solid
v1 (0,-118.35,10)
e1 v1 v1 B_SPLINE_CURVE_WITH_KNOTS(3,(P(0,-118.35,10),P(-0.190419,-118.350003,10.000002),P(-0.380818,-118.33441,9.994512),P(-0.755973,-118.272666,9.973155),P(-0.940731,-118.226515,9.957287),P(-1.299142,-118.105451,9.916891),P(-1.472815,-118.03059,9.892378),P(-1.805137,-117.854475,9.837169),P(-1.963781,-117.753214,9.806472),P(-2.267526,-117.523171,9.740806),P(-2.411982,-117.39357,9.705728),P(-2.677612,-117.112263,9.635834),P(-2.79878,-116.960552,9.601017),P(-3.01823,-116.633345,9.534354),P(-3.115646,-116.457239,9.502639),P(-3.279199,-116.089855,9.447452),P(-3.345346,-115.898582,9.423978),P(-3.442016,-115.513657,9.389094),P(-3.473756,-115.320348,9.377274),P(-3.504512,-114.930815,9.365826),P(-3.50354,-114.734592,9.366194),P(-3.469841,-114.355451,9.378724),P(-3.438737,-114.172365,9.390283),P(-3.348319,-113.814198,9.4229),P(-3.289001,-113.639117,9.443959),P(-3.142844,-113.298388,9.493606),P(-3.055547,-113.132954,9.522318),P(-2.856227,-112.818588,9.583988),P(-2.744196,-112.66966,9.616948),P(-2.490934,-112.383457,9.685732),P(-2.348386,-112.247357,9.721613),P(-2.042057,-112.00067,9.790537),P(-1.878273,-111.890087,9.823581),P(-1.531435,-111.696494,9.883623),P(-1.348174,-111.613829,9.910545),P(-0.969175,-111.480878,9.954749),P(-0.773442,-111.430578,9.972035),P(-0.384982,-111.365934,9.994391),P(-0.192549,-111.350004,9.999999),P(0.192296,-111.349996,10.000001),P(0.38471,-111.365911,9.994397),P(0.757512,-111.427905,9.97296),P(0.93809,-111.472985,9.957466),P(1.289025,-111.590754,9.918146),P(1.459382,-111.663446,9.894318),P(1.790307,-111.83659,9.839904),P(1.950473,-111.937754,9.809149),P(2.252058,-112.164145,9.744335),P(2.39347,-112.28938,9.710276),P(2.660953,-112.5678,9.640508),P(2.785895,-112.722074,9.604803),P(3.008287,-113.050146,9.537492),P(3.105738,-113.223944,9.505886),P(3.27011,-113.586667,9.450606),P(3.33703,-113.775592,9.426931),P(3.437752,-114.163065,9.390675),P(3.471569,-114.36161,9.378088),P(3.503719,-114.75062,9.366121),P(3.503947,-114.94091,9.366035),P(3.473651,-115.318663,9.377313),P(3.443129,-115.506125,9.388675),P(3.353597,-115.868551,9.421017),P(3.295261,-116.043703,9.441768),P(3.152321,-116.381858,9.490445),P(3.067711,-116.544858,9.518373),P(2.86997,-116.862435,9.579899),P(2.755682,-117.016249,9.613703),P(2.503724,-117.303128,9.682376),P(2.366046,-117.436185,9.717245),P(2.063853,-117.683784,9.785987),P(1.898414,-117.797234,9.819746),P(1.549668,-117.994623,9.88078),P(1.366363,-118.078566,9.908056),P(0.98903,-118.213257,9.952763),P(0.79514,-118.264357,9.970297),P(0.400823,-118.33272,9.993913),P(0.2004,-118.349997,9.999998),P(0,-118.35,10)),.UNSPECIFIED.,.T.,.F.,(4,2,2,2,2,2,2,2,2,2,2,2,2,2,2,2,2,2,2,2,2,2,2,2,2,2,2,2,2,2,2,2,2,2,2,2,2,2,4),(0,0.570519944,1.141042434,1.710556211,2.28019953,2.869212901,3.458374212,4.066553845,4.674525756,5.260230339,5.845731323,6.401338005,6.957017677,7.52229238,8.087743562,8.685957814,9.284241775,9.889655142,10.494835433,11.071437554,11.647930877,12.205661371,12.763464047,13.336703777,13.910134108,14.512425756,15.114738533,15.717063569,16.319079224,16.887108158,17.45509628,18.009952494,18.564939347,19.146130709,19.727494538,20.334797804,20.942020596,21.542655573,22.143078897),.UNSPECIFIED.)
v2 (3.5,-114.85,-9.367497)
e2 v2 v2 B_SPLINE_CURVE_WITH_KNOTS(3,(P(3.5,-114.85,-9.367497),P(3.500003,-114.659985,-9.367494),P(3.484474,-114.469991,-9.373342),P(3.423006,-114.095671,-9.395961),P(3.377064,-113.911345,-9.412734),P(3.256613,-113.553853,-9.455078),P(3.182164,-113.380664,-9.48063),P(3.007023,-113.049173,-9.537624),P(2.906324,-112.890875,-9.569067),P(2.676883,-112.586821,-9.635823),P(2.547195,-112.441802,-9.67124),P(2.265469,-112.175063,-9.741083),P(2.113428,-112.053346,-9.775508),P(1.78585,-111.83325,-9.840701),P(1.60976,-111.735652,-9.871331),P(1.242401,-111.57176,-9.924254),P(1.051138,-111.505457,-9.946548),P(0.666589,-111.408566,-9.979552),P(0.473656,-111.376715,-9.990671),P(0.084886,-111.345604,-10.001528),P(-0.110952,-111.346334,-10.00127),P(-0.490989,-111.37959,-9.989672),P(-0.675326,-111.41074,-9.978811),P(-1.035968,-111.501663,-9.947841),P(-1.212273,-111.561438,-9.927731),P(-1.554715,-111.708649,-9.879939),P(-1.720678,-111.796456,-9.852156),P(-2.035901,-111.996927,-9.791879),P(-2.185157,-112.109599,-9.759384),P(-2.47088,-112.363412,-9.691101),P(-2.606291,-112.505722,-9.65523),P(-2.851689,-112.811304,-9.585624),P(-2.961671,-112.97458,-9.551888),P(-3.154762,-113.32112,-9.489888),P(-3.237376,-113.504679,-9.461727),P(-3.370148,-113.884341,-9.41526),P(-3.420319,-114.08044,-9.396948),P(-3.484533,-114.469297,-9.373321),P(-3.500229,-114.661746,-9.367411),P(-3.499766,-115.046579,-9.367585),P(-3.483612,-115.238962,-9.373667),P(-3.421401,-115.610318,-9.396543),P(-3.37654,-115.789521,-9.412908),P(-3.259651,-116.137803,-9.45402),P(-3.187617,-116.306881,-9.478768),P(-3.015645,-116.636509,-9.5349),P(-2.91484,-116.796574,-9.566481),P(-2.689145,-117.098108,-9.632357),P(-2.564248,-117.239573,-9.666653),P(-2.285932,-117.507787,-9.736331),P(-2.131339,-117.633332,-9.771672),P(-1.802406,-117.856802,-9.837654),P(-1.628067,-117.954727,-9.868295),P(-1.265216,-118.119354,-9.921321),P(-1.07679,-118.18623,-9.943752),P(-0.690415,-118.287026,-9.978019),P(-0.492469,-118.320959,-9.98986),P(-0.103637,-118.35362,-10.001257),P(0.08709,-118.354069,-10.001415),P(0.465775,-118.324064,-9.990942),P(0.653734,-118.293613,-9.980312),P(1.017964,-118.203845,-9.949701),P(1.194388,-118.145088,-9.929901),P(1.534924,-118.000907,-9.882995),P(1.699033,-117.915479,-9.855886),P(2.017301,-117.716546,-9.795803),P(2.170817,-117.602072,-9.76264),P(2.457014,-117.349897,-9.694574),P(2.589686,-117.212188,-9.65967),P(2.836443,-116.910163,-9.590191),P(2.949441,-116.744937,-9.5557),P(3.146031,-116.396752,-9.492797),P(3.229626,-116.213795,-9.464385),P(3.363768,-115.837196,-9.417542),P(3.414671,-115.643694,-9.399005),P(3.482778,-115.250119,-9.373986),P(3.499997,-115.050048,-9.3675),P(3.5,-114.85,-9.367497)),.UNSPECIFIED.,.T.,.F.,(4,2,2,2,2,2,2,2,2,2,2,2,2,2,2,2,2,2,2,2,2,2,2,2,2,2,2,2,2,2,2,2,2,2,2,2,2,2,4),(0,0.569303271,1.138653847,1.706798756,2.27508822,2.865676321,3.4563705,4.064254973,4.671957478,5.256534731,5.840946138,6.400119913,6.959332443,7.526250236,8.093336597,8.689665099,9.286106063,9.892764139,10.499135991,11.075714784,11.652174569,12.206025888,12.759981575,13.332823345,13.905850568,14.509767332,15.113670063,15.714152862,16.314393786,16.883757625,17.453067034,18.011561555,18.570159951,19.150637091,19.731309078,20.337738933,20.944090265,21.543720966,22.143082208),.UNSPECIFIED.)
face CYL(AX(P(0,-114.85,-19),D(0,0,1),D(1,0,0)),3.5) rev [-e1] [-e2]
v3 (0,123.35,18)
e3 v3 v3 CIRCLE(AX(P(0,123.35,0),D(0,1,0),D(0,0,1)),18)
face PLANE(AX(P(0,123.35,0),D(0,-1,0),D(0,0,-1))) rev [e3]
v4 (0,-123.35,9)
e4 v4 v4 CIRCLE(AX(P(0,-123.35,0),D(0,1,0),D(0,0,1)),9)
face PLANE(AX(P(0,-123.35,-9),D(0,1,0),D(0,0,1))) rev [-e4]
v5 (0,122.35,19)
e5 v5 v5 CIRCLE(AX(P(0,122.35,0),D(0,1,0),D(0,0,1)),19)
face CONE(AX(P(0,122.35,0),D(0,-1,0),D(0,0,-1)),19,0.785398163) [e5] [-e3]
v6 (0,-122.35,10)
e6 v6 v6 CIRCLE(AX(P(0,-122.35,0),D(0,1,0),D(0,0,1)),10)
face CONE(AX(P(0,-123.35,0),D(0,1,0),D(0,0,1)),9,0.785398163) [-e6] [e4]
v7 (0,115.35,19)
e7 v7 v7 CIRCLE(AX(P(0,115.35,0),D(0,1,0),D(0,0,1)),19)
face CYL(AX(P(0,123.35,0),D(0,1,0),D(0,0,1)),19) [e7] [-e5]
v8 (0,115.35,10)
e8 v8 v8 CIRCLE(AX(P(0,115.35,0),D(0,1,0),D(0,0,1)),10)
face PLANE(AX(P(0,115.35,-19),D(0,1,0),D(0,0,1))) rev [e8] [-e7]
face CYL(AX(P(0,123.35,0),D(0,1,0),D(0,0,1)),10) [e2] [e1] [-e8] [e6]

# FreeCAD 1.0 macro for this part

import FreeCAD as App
import Part
import Sketcher

V = App.Vector
Q = App.Units.Quantity


def add_polygon(sketch, points):
    """Adds a closed chain of lines whose ends are joined by coincident constraints."""
    first, n = sketch.GeometryCount, len(points)
    for a, b in zip(points, points[1:] + points[:1]):
        sketch.addGeometry(Part.LineSegment(App.Vector(*a, 0), App.Vector(*b, 0)), False)
    for i in range(n):
        sketch.addConstraint(Sketcher.Constraint("Coincident", first + i, 2, first + (i + 1) % n, 1))

doc = App.newDocument("Part")
body = doc.addObject("PartDesign::Body", "Body")

sketch1 = body.newObject("Sketcher::SketchObject", "Sketch")
sketch1.AttachmentSupport = (doc.getObject("YZ_Plane"), [""])
sketch1.MapMode = "FlatFace"
add_polygon(sketch1, [(123.3, -18), (123.3, 0), (-123.3, 0), (-123.3, -9), (-122.3, -10), (115.3, -10), (115.3, -19), (122.3, -19)])
sketch1.addConstraint(Sketcher.Constraint("Vertical", 0))
sketch1.addConstraint(Sketcher.Constraint("Horizontal", 1))
sketch1.addConstraint(Sketcher.Constraint("Vertical", 2))
sketch1.addConstraint(Sketcher.Constraint("Horizontal", 4))
sketch1.addConstraint(Sketcher.Constraint("Vertical", 5))
sketch1.addConstraint(Sketcher.Constraint("Horizontal", 6))
sketch1.addConstraint(Sketcher.Constraint("Symmetric", 0, 2, 1, 2, -1, 1))
sketch1.addConstraint(Sketcher.Constraint("Perpendicular", 3, 7))
sketch1.addConstraint(Sketcher.Constraint("Equal", 2, 5))
sketch1.addConstraint(Sketcher.Constraint("Equal", 3, 7))
sketch1.addConstraint(Sketcher.Constraint("DistanceX", 6, 1, 6, 2, Q("7 mm")))
sketch1.addConstraint(Sketcher.Constraint("DistanceY", 0, 1, 0, 2, Q("18 mm")))
sketch1.addConstraint(Sketcher.Constraint("DistanceY", 2, 2, 2, 1, Q("9 mm")))
sketch1.addConstraint(Sketcher.Constraint("DistanceX", 1, 2, 1, 1, Q("246.7 mm")))
sketch1.addConstraint(Sketcher.Constraint("DistanceX", 4, 1, 4, 2, Q("237.7 mm")))
revolution = body.newObject("PartDesign::Revolution", "Revolution")
revolution.Profile = sketch1
revolution.ReferenceAxis = (sketch1, ["H_Axis"])
revolution.Angle = 360

sketch2 = body.newObject("Sketcher::SketchObject", "Sketch001")
sketch2.AttachmentSupport = (doc.getObject("XY_Plane"), [""])
sketch2.MapMode = "FlatFace"
sketch2.addGeometry(Part.Circle(V(0, -114.8, 0), V(0, 0, 1), 3.5), False)
sketch2.addConstraint(Sketcher.Constraint("PointOnObject", 0, 3, -2))
sketch2.addConstraint(Sketcher.Constraint("Diameter", 0, Q("7 mm")))
sketch2.addConstraint(Sketcher.Constraint("DistanceY", 0, 3, -1, 1, Q("114.85 mm")))
pocket1 = body.newObject("PartDesign::Pocket", "Pocket")
pocket1.Profile = sketch2
pocket1.Type = "ThroughAll"
pocket1.Midplane = True

doc.recompute()
